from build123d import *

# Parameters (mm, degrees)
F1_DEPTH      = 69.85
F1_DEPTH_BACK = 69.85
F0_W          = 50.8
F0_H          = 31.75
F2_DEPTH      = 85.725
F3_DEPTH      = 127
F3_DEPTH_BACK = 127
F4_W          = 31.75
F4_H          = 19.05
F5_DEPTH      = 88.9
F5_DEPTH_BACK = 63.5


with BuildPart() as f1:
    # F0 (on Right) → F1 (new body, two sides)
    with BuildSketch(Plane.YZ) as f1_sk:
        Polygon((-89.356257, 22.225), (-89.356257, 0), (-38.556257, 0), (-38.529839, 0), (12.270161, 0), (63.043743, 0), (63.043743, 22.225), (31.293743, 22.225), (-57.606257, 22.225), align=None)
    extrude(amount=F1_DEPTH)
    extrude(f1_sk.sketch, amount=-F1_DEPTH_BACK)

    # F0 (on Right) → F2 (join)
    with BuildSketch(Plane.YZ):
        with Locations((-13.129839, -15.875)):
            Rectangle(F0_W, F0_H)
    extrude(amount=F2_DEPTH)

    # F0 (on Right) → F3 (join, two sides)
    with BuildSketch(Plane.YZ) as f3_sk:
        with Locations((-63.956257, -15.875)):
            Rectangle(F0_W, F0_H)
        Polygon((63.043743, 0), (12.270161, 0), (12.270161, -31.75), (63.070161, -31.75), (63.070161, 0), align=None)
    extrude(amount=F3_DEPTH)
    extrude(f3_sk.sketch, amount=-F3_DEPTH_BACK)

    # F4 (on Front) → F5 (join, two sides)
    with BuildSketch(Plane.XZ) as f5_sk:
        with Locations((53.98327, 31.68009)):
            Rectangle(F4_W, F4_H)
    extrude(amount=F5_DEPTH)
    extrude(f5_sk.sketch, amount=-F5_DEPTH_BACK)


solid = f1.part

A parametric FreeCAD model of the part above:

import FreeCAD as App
import Part
import Sketcher
from FreeCAD import Vector
Q = App.Units.Quantity

doc = App.newDocument("Part")
body = doc.addObject("PartDesign::Body", "Body")

# Sketch on YZ plane
sketch1 = body.newObject("Sketcher::SketchObject", "Sketch")
sketch1.AttachmentSupport = (doc.getObject("YZ_Plane"), [""])
sketch1.MapMode = "FlatFace"
sketch1.addGeometry(Part.LineSegment(Vector(-89.356257, 22.225, 0), Vector(-89.356257, 0, 0)), False)
sketch1.addGeometry(Part.LineSegment(Vector(-89.356257, 0, 0), Vector(63.043743, 0, 0)), False)
sketch1.addGeometry(Part.LineSegment(Vector(63.043743, 0, 0), Vector(63.043743, 22.225, 0)), False)
sketch1.addGeometry(Part.LineSegment(Vector(63.043743, 22.225, 0), Vector(-89.356257, 22.225, 0)), False)
sketch1.addConstraint(Sketcher.Constraint("Coincident", 0, 2, 1, 1))
sketch1.addConstraint(Sketcher.Constraint("Coincident", 1, 2, 2, 1))
sketch1.addConstraint(Sketcher.Constraint("Coincident", 2, 2, 3, 1))
sketch1.addConstraint(Sketcher.Constraint("Coincident", 3, 2, 0, 1))
sketch1.addConstraint(Sketcher.Constraint("Vertical", 0))
sketch1.addConstraint(Sketcher.Constraint("Horizontal", 1))
sketch1.addConstraint(Sketcher.Constraint("Vertical", 2))
sketch1.addConstraint(Sketcher.Constraint("Horizontal", 3))
sketch1.addConstraint(Sketcher.Constraint("PointOnObject", 0, 2, -1))
sketch1.addConstraint(Sketcher.Constraint("DistanceX", 1, 1, 1, 2, Q("6 in")))
sketch1.addConstraint(Sketcher.Constraint("DistanceY", 0, 2, 0, 1, Q("0.875 in")))
sketch1.addConstraint(Sketcher.Constraint("DistanceX", 0, 2, -1, 1, Q("89.356257 mm")))
pad1 = body.newObject("PartDesign::Pad", "Pad")
pad1.Profile = sketch1
pad1.Type = "TwoLengths"
pad1.Length = Q("2.75 in")
pad1.Length2 = Q("2.75 in")

# Sketch on YZ plane
sketch2 = body.newObject("Sketcher::SketchObject", "Sketch001")
sketch2.AttachmentSupport = (doc.getObject("YZ_Plane"), [""])
sketch2.MapMode = "FlatFace"
sketch2.addGeometry(Part.LineSegment(Vector(-38.529839, 0, 0), Vector(-38.529839, -31.75, 0)), False)
sketch2.addGeometry(Part.LineSegment(Vector(-38.529839, -31.75, 0), Vector(12.270161, -31.75, 0)), False)
sketch2.addGeometry(Part.LineSegment(Vector(12.270161, -31.75, 0), Vector(12.270161, 0, 0)), False)
sketch2.addGeometry(Part.LineSegment(Vector(12.270161, 0, 0), Vector(-38.529839, 0, 0)), False)
sketch2.addConstraint(Sketcher.Constraint("Coincident", 0, 2, 1, 1))
sketch2.addConstraint(Sketcher.Constraint("Coincident", 1, 2, 2, 1))
sketch2.addConstraint(Sketcher.Constraint("Coincident", 2, 2, 3, 1))
sketch2.addConstraint(Sketcher.Constraint("Coincident", 3, 2, 0, 1))
sketch2.addConstraint(Sketcher.Constraint("Vertical", 0))
sketch2.addConstraint(Sketcher.Constraint("Horizontal", 1))
sketch2.addConstraint(Sketcher.Constraint("Vertical", 2))
sketch2.addConstraint(Sketcher.Constraint("Horizontal", 3))
sketch2.addConstraint(Sketcher.Constraint("PointOnObject", 2, 2, -1))
sketch2.addConstraint(Sketcher.Constraint("DistanceX", 1, 1, 1, 2, Q("2 in")))
sketch2.addConstraint(Sketcher.Constraint("DistanceY", 0, 2, 0, 1, Q("1.25 in")))
sketch2.addConstraint(Sketcher.Constraint("DistanceX", 0, 2, -1, 1, Q("38.529839 mm")))
pad2 = body.newObject("PartDesign::Pad", "Pad001")
pad2.Profile = sketch2
pad2.Length = Q("3.375 in")

# Sketch on YZ plane
sketch3 = body.newObject("Sketcher::SketchObject", "Sketch002")
sketch3.AttachmentSupport = (doc.getObject("YZ_Plane"), [""])
sketch3.MapMode = "FlatFace"
sketch3.addGeometry(Part.LineSegment(Vector(-89.356257, 0, 0), Vector(-89.356257, -31.75, 0)), False)
sketch3.addGeometry(Part.LineSegment(Vector(-89.356257, -31.75, 0), Vector(-38.556257, -31.75, 0)), False)
sketch3.addGeometry(Part.LineSegment(Vector(-38.556257, -31.75, 0), Vector(-38.556257, 0, 0)), False)
sketch3.addGeometry(Part.LineSegment(Vector(-38.556257, 0, 0), Vector(-89.356257, 0, 0)), False)
sketch3.addGeometry(Part.LineSegment(Vector(12.270161, 0, 0), Vector(12.270161, -31.75, 0)), False)
sketch3.addGeometry(Part.LineSegment(Vector(12.270161, -31.75, 0), Vector(63.070161, -31.75, 0)), False)
sketch3.addGeometry(Part.LineSegment(Vector(63.070161, -31.75, 0), Vector(63.070161, 0, 0)), False)
sketch3.addGeometry(Part.LineSegment(Vector(63.070161, 0, 0), Vector(12.270161, 0, 0)), False)
sketch3.addConstraint(Sketcher.Constraint("Coincident", 0, 2, 1, 1))
sketch3.addConstraint(Sketcher.Constraint("Coincident", 1, 2, 2, 1))
sketch3.addConstraint(Sketcher.Constraint("Coincident", 2, 2, 3, 1))
sketch3.addConstraint(Sketcher.Constraint("Coincident", 3, 2, 0, 1))
sketch3.addConstraint(Sketcher.Constraint("Coincident", 4, 2, 5, 1))
sketch3.addConstraint(Sketcher.Constraint("Coincident", 5, 2, 6, 1))
sketch3.addConstraint(Sketcher.Constraint("Coincident", 6, 2, 7, 1))
sketch3.addConstraint(Sketcher.Constraint("Coincident", 7, 2, 4, 1))
sketch3.addConstraint(Sketcher.Constraint("Vertical", 0))
sketch3.addConstraint(Sketcher.Constraint("Horizontal", 1))
sketch3.addConstraint(Sketcher.Constraint("Vertical", 2))
sketch3.addConstraint(Sketcher.Constraint("Horizontal", 3))
sketch3.addConstraint(Sketcher.Constraint("Vertical", 4))
sketch3.addConstraint(Sketcher.Constraint("Horizontal", 5))
sketch3.addConstraint(Sketcher.Constraint("Vertical", 6))
sketch3.addConstraint(Sketcher.Constraint("Horizontal", 7))
sketch3.addConstraint(Sketcher.Constraint("PointOnObject", 2, 2, -1))
sketch3.addConstraint(Sketcher.Constraint("PointOnObject", 6, 2, -1))
sketch3.addConstraint(Sketcher.Constraint("Horizontal", 1, 2, 4, 2))
sketch3.addConstraint(Sketcher.Constraint("Equal", 3, 5))
sketch3.addConstraint(Sketcher.Constraint("DistanceX", 1, 1, 1, 2, Q("2 in")))
sketch3.addConstraint(Sketcher.Constraint("DistanceY", 0, 2, 0, 1, Q("1.25 in")))
sketch3.addConstraint(Sketcher.Constraint("DistanceX", -1, 1, 4, 2, Q("12.270161 mm")))
sketch3.addConstraint(Sketcher.Constraint("DistanceX", 1, 2, 4, 2, Q("50.826418 mm")))
pad3 = body.newObject("PartDesign::Pad", "Pad002")
pad3.Profile = sketch3
pad3.Type = "TwoLengths"
pad3.Length = Q("5 in")
pad3.Length2 = Q("5 in")

# Sketch on XZ plane
sketch4 = body.newObject("Sketcher::SketchObject", "Sketch003")
sketch4.AttachmentSupport = (doc.getObject("XZ_Plane"), [""])
sketch4.MapMode = "FlatFace"
sketch4.addGeometry(Part.LineSegment(Vector(38.10827, 41.20509, 0), Vector(38.10827, 22.15509, 0)), False)
sketch4.addGeometry(Part.LineSegment(Vector(38.10827, 22.15509, 0), Vector(69.85827, 22.15509, 0)), False)
sketch4.addGeometry(Part.LineSegment(Vector(69.85827, 22.15509, 0), Vector(69.85827, 41.20509, 0)), False)
sketch4.addGeometry(Part.LineSegment(Vector(69.85827, 41.20509, 0), Vector(38.10827, 41.20509, 0)), False)
sketch4.addConstraint(Sketcher.Constraint("Coincident", 0, 2, 1, 1))
sketch4.addConstraint(Sketcher.Constraint("Coincident", 1, 2, 2, 1))
sketch4.addConstraint(Sketcher.Constraint("Coincident", 2, 2, 3, 1))
sketch4.addConstraint(Sketcher.Constraint("Coincident", 3, 2, 0, 1))
sketch4.addConstraint(Sketcher.Constraint("Vertical", 0))
sketch4.addConstraint(Sketcher.Constraint("Horizontal", 1))
sketch4.addConstraint(Sketcher.Constraint("Vertical", 2))
sketch4.addConstraint(Sketcher.Constraint("Horizontal", 3))
sketch4.addConstraint(Sketcher.Constraint("DistanceX", 1, 1, 1, 2, Q("1.25 in")))
sketch4.addConstraint(Sketcher.Constraint("DistanceY", 0, 2, 0, 1, Q("0.75 in")))
sketch4.addConstraint(Sketcher.Constraint("DistanceX", -1, 1, 0, 2, Q("38.10827 mm")))
sketch4.addConstraint(Sketcher.Constraint("DistanceY", -1, 1, 0, 2, Q("22.15509 mm")))
pad4 = body.newObject("PartDesign::Pad", "Pad003")
pad4.Profile = sketch4
pad4.Type = "TwoLengths"
pad4.Length = Q("3.5 in")
pad4.Length2 = Q("2.5 in")

doc.recompute()
